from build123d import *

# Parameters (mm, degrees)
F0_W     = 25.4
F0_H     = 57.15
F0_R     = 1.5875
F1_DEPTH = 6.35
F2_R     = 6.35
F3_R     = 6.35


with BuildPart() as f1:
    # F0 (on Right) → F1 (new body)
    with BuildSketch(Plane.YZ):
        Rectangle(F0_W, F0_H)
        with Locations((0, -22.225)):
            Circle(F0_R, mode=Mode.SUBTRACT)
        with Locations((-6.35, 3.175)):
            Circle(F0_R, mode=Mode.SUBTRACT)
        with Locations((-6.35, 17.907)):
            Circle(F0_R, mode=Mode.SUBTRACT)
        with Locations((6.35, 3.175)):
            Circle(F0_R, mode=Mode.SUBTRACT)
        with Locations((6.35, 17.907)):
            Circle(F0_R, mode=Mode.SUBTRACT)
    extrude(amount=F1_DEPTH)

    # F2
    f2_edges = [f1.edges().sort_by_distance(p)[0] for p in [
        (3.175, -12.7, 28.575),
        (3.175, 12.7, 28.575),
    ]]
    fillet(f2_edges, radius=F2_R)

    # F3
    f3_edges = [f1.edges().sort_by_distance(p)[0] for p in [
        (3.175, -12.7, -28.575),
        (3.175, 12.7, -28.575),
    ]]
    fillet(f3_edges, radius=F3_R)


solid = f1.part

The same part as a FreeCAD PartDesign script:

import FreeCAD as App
import Part
import Sketcher

V = App.Vector
Q = App.Units.Quantity


def edges_at(feature, points):
    """Names of the edges that pass closest to the given points."""
    edges = feature.Shape.Edges
    near = lambda p: min(range(len(edges)), key=lambda i: edges[i].distToShape(Part.Vertex(*p))[0])
    return sorted({f"Edge{near(p) + 1}" for p in points})

doc = App.newDocument("Part")
params = doc.addObject("Spreadsheet::Sheet", "Params")
for row, (alias, value) in enumerate([
    ("sketch1_width", "1 in"),
    ("sketch1_diameter", "0.125 in"),
    ("sketch1_height", "2.25 in"),
    ("pad1_length", "0.25 in"),
    ("fillet_radius", "0.25 in"),
    ("fillet2_radius", "0.25 in"),
], start=1):
    params.set(f"A{row}", alias)
    params.set(f"B{row}", "=" + value)
    params.setAlias(f"B{row}", alias)

body = doc.addObject("PartDesign::Body", "Body")

# Sketch on YZ plane
sketch1 = body.newObject("Sketcher::SketchObject", "Sketch")
sketch1.AttachmentSupport = (doc.getObject("YZ_Plane"), [""])
sketch1.MapMode = "FlatFace"
sketch1.addGeometry(Part.LineSegment(V(-12.7, 28.575, 0), V(-12.7, -28.575, 0)), False)
sketch1.addGeometry(Part.LineSegment(V(-12.7, -28.575, 0), V(12.7, -28.575, 0)), False)
sketch1.addGeometry(Part.LineSegment(V(12.7, -28.575, 0), V(12.7, 28.575, 0)), False)
sketch1.addGeometry(Part.LineSegment(V(12.7, 28.575, 0), V(-12.7, 28.575, 0)), False)
sketch1.addGeometry(Part.Circle(V(0, -22.225, 0), V(0, 0, 1), 1.5875), False)
sketch1.addGeometry(Part.Circle(V(-6.35, 3.175, 0), V(0, 0, 1), 1.5875), False)
sketch1.addGeometry(Part.Circle(V(-6.35, 17.907, 0), V(0, 0, 1), 1.5875), False)
sketch1.addGeometry(Part.Circle(V(6.35, 3.175, 0), V(0, 0, 1), 1.5875), False)
sketch1.addGeometry(Part.Circle(V(6.35, 17.907, 0), V(0, 0, 1), 1.5875), False)
sketch1.addConstraint(Sketcher.Constraint("Coincident", 0, 2, 1, 1))
sketch1.addConstraint(Sketcher.Constraint("Coincident", 1, 2, 2, 1))
sketch1.addConstraint(Sketcher.Constraint("Coincident", 2, 2, 3, 1))
sketch1.addConstraint(Sketcher.Constraint("Coincident", 3, 2, 0, 1))
sketch1.addConstraint(Sketcher.Constraint("Vertical", 0))
sketch1.addConstraint(Sketcher.Constraint("Horizontal", 1))
sketch1.addConstraint(Sketcher.Constraint("Vertical", 2))
sketch1.addConstraint(Sketcher.Constraint("Horizontal", 3))
sketch1.addConstraint(Sketcher.Constraint("Equal", 4, 5))
sketch1.addConstraint(Sketcher.Constraint("Equal", 5, 6))
sketch1.addConstraint(Sketcher.Constraint("Equal", 6, 7))
sketch1.addConstraint(Sketcher.Constraint("Equal", 7, 8))
sketch1.addConstraint(Sketcher.Constraint("Symmetric", 0, 2, 2, 2, -1, 1))
sketch1.addConstraint(Sketcher.Constraint("Symmetric", 5, 3, 7, 3, -2))
sketch1.addConstraint(Sketcher.Constraint("Symmetric", 6, 3, 8, 3, -2))
sketch1.addConstraint(Sketcher.Constraint("PointOnObject", 4, 3, -2))
sketch1.addConstraint(Sketcher.Constraint("Vertical", 5, 3, 6, 3))
sketch1.addConstraint(Sketcher.Constraint("DistanceX", 1, 1, 1, 2, Q("1 in")))
sketch1.addConstraint(Sketcher.Constraint("Diameter", 4, Q("0.125 in")))
sketch1.addConstraint(Sketcher.Constraint("DistanceY", 4, 3, 5, 3, Q("1 in")))
sketch1.addConstraint(Sketcher.Constraint("DistanceY", 7, 3, 2, 2, Q("1 in")))
sketch1.addConstraint(Sketcher.Constraint("DistanceY", 0, 2, 0, 1, Q("2.25 in")))
sketch1.addConstraint(Sketcher.Constraint("DistanceX", 5, 3, 7, 3, Q("0.5 in")))
sketch1.addConstraint(Sketcher.Constraint("DistanceY", 5, 3, 6, 3, Q("0.58 in")))
sketch1.setExpression("Constraints[17]", "Params.sketch1_width")
sketch1.setExpression("Constraints[18]", "Params.sketch1_diameter")
sketch1.setExpression("Constraints[21]", "Params.sketch1_height")
pad1 = body.newObject("PartDesign::Pad", "Pad")
pad1.Profile = sketch1
pad1.setExpression("Length", "Params.pad1_length")
doc.recompute()

fillet = body.newObject("PartDesign::Fillet", "Fillet")
fillet.Base = (pad1, edges_at(pad1, [(3.175, -12.7, 28.575), (3.175, 12.7, 28.575)]))
fillet.setExpression("Radius", "Params.fillet_radius")
doc.recompute()

fillet2 = body.newObject("PartDesign::Fillet", "Fillet001")
fillet2.Base = (fillet, edges_at(fillet, [(3.175, -12.7, -28.575), (3.175, 12.7, -28.575)]))
fillet2.setExpression("Radius", "Params.fillet2_radius")

doc.recompute()
